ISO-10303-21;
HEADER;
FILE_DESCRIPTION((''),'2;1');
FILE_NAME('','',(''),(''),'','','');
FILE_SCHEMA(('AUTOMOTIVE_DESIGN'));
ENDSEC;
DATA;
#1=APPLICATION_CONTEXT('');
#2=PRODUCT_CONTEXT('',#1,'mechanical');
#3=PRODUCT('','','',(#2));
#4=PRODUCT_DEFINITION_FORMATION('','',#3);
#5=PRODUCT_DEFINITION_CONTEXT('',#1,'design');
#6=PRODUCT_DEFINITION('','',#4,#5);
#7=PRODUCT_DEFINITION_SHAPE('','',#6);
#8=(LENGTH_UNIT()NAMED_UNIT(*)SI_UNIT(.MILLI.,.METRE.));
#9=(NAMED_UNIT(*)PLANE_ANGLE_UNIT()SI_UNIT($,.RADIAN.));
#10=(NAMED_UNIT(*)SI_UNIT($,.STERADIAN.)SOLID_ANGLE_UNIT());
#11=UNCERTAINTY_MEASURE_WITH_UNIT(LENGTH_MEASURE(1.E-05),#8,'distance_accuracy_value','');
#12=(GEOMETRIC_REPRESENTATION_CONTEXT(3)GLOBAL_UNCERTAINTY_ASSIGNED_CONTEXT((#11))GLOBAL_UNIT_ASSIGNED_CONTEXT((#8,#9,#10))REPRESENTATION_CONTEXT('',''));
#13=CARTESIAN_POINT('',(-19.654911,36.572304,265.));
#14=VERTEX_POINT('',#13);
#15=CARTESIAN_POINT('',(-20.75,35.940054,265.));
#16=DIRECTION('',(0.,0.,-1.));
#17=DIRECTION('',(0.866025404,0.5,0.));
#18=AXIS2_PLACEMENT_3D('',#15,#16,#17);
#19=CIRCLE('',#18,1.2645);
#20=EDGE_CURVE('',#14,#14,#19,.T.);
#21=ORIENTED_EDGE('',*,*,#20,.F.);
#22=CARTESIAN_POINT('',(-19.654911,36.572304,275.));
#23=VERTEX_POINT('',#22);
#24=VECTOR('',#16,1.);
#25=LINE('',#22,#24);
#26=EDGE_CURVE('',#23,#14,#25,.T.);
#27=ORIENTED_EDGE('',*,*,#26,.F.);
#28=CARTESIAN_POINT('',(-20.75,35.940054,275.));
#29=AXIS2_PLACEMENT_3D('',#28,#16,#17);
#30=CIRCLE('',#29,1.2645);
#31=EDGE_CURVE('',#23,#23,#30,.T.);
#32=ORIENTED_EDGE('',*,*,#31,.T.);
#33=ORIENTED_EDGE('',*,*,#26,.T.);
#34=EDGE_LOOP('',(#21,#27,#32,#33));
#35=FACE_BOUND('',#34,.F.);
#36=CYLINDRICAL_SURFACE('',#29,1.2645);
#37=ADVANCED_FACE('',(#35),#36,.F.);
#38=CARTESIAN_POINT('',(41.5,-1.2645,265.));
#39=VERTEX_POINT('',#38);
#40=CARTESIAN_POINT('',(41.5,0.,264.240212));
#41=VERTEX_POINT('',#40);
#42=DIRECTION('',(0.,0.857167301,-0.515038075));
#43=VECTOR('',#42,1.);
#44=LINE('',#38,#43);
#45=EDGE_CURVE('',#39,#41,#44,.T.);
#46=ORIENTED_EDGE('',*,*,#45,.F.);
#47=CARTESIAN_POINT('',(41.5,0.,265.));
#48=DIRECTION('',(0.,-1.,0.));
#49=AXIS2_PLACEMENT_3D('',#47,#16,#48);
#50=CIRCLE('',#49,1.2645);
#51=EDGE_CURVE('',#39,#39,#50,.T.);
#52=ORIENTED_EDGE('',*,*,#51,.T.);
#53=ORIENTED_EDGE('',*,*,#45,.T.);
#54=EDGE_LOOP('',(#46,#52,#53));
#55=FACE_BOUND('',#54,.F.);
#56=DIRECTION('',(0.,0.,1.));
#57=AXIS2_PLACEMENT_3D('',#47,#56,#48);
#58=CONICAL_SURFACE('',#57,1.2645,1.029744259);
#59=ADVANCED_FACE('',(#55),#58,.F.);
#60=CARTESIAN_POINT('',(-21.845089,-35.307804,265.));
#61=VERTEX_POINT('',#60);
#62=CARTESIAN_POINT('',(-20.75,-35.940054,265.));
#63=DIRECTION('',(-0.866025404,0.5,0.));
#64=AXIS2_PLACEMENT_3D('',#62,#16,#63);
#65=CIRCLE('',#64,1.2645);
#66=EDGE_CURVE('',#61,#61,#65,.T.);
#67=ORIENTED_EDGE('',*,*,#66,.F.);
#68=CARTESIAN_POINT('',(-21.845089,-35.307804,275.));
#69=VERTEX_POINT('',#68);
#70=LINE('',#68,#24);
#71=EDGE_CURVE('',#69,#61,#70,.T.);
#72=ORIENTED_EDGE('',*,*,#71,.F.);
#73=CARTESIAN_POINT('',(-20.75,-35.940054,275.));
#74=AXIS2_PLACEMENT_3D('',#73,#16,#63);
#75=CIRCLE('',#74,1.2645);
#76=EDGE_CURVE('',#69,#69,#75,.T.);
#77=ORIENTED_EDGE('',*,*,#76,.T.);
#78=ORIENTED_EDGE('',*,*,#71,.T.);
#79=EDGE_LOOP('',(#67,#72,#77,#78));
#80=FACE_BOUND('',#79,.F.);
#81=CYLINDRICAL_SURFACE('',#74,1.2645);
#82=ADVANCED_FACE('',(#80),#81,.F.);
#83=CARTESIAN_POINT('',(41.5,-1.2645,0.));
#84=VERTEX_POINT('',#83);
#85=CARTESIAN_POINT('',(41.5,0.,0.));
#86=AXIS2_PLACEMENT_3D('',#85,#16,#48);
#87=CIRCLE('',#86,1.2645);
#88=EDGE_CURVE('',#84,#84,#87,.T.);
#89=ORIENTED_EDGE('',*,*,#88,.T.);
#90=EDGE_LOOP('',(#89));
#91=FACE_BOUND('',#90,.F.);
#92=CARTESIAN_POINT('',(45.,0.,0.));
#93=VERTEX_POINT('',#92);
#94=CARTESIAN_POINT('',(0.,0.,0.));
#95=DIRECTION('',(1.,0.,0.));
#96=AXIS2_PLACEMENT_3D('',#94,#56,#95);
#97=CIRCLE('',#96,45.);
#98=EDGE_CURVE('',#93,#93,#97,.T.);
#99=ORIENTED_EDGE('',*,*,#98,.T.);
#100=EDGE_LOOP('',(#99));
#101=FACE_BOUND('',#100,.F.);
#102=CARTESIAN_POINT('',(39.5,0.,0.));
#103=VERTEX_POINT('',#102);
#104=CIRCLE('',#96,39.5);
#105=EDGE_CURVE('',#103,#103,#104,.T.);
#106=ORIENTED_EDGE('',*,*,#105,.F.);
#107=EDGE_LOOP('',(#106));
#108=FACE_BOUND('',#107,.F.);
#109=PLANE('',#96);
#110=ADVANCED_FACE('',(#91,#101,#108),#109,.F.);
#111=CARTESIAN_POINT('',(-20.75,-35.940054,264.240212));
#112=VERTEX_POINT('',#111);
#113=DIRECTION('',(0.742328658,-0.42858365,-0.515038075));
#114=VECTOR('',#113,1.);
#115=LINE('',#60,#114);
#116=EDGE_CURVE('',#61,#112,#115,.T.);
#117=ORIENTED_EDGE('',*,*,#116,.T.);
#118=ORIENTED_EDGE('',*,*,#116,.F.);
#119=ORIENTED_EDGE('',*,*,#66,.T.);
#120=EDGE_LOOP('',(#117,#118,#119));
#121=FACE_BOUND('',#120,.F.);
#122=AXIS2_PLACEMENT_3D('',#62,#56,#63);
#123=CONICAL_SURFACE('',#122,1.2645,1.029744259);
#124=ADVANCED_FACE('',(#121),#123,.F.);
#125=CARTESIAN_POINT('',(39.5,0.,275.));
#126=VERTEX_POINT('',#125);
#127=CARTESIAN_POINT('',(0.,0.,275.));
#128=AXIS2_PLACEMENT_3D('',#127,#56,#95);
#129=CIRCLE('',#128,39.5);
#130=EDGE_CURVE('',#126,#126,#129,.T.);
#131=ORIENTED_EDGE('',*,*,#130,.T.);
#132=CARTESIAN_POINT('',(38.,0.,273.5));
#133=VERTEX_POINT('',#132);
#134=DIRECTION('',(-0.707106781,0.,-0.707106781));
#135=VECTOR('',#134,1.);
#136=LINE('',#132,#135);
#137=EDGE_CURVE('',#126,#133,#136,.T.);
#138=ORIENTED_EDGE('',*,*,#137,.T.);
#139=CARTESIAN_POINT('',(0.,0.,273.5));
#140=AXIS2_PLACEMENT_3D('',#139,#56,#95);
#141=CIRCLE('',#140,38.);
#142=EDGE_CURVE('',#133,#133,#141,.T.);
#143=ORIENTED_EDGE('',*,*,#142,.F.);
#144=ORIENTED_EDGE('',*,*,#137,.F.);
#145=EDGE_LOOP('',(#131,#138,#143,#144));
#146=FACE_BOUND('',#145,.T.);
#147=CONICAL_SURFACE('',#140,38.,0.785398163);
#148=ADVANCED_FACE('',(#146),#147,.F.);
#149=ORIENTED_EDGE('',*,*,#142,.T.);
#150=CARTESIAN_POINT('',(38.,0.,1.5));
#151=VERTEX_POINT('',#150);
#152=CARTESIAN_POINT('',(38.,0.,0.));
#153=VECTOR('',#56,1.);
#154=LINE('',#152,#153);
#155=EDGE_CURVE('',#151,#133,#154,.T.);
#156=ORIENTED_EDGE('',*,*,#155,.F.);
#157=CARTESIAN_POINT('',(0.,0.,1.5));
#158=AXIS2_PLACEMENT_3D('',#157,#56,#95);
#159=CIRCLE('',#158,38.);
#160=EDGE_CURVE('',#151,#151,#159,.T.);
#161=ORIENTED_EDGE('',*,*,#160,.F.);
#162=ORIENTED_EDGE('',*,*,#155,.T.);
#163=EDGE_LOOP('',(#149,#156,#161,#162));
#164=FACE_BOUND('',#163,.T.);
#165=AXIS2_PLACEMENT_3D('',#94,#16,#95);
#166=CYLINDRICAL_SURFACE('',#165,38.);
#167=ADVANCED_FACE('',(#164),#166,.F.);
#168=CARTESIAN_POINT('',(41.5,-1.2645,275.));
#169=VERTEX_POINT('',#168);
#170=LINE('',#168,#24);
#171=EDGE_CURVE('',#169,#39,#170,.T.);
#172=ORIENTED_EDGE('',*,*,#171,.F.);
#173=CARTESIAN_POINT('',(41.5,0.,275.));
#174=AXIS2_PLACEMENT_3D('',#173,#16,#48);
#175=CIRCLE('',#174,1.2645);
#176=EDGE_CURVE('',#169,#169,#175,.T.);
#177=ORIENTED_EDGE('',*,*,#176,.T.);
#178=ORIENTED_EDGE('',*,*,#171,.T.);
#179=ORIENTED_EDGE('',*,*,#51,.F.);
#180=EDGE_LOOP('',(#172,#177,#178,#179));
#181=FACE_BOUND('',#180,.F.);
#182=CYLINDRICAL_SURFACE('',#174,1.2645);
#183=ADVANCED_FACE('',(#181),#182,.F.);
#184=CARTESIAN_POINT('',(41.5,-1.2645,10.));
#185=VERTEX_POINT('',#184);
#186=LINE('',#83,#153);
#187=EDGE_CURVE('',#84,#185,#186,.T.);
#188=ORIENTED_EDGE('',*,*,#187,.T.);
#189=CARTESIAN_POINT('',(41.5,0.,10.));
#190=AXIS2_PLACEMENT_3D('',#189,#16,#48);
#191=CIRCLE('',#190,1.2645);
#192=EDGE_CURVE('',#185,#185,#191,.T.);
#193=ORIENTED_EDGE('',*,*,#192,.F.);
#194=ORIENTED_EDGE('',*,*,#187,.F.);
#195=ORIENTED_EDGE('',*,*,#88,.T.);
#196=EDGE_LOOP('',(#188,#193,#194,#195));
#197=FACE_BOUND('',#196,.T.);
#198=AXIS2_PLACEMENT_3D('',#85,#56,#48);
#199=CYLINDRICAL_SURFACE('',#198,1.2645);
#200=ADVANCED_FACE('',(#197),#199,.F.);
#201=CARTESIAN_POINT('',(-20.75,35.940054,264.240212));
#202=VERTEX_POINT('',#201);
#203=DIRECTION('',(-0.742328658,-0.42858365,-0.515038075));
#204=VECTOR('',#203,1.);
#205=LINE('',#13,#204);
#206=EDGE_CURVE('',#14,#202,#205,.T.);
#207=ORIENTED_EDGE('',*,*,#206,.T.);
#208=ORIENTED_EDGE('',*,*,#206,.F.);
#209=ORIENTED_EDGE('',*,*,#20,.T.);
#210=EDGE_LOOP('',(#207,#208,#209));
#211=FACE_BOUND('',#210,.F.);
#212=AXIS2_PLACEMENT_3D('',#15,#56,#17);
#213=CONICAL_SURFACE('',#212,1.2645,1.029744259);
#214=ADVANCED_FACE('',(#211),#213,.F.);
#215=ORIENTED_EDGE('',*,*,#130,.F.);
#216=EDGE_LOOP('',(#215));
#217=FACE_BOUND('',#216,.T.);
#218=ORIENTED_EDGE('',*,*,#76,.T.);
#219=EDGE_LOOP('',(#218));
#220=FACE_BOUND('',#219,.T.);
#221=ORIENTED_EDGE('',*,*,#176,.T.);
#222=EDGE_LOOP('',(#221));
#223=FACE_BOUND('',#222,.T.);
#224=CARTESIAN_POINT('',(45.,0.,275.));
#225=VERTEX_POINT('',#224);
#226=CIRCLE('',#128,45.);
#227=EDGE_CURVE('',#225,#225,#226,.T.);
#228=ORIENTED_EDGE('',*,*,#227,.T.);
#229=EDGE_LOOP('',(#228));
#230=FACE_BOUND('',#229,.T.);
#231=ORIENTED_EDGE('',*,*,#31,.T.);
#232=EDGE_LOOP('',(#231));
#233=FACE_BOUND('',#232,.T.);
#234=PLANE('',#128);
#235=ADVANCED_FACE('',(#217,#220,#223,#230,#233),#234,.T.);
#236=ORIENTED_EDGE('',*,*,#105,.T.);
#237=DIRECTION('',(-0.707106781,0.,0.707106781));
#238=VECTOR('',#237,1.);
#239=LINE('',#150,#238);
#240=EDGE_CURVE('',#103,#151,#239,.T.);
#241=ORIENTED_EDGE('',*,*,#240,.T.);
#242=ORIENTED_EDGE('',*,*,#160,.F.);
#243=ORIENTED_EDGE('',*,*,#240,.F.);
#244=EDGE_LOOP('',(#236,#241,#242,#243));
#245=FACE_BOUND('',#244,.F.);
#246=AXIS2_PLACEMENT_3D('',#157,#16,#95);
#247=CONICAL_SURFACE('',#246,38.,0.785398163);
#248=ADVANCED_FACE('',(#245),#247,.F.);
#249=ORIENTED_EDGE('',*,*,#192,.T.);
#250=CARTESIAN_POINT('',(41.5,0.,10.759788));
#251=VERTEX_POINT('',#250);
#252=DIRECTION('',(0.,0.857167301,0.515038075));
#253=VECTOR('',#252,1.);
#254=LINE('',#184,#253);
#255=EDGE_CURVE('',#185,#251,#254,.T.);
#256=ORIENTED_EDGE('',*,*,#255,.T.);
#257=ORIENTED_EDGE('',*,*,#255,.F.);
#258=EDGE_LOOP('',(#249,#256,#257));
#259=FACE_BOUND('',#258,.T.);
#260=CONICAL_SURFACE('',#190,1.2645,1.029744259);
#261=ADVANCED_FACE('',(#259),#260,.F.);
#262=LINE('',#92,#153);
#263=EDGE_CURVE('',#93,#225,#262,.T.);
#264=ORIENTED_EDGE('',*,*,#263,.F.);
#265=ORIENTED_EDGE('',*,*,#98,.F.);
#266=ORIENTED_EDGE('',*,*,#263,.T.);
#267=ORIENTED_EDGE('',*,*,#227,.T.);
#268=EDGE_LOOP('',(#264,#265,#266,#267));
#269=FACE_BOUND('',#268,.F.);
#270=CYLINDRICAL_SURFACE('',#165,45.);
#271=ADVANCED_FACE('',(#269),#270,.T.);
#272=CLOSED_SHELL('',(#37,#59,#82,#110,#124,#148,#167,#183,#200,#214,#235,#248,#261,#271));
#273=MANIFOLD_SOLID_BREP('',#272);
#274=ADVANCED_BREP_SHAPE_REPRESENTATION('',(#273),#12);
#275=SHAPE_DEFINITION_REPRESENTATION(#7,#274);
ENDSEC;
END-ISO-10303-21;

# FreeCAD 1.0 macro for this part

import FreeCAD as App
import Part
import Sketcher


def edges_at(feature, points):
    """Names of the edges that pass closest to the given points."""
    edges = feature.Shape.Edges
    near = lambda p: min(range(len(edges)), key=lambda i: edges[i].distToShape(Part.Vertex(*p))[0])
    return sorted({f"Edge{near(p) + 1}" for p in points})

doc = App.newDocument("Part")
params = doc.addObject("Spreadsheet::Sheet", "Params")
for row, (alias, value) in enumerate([
    ("sketch1_diameter", "76 mm"),
    ("sketch1_diameter2", "90 mm"),
    ("pad1_length", "275 mm"),
    ("hole_diameter", "2.529 mm"),
    ("hole_depth", "10 mm"),
    ("chamfer_size", "1.5 mm"),
], start=1):
    params.set(f"A{row}", alias)
    params.set(f"B{row}", "=" + value)
    params.setAlias(f"B{row}", alias)

body = doc.addObject("PartDesign::Body", "Body")

sketch1 = body.newObject("Sketcher::SketchObject", "Sketch")
sketch1.AttachmentSupport = (doc.getObject("XY_Plane"), [""])
sketch1.MapMode = "FlatFace"
sketch1.addGeometry([
    Part.Circle(App.Vector(0, 0, 0), App.Vector(0, 0, 1), 45),
    Part.Circle(App.Vector(0, 0, 0), App.Vector(0, 0, 1), 38),
], False)
sketch1.addConstraint([
    Sketcher.Constraint("Coincident", 0, 3, -1, 1),
    Sketcher.Constraint("Coincident", 1, 3, -1, 1),
    Sketcher.Constraint("Diameter", 1, 76.0),
    Sketcher.Constraint("Diameter", 0, 90.0),
])
sketch1.setExpression("Constraints[2]", "Params.sketch1_diameter")
sketch1.setExpression("Constraints[3]", "Params.sketch1_diameter2")
pad1 = body.newObject("PartDesign::Pad", "Pad")
pad1.Profile = sketch1
pad1.setExpression("Length", "Params.pad1_length")

sketch2 = body.newObject("Sketcher::SketchObject", "Sketch001")
sketch2.AttachmentSupport = (doc.getObject("XY_Plane"), [""])
sketch2.MapMode = "FlatFace"
sketch2.AttachmentOffset = App.Placement(App.Vector(0, 0, 275), App.Rotation())
sketch2.addGeometry(Part.Circle(App.Vector(41.5, 0, 0), App.Vector(0, 0, 1), 1.2645), False)
sketch2.addConstraint([
    Sketcher.Constraint("PointOnObject", 0, 3, -1),
    Sketcher.Constraint("Diameter", 0, 2.529),
    Sketcher.Constraint("DistanceX", -1, 1, 0, 3, 41.5),
])
doc.recompute()
hole = body.newObject("PartDesign::Hole", "Hole")
hole.Profile = sketch2
hole.ThreadType = "None"
hole.setExpression("Diameter", "Params.hole_diameter")
hole.DepthType = "Dimension"
hole.setExpression("Depth", "Params.hole_depth")
hole.DrillPoint = "Angled"
hole.DrillPointAngle = 118
doc.recompute()

polarpattern = body.newObject("PartDesign::PolarPattern", "PolarPattern")
polarpattern.Originals = [hole]
polarpattern.Axis = (doc.getObject("Z_Axis"), [""])
polarpattern.Angle = 360
polarpattern.Occurrences = 3
body.Tip = polarpattern
doc.recompute()

chamfer = body.newObject("PartDesign::Chamfer", "Chamfer")
chamfer.Base = (polarpattern, edges_at(polarpattern, [(-35.428, 13.741, 275), (-35.428, 13.741, 0)]))
chamfer.setExpression("Size", "Params.chamfer_size")
doc.recompute()

datumplane = body.newObject("PartDesign::Plane", "DatumPlane")
datumplane.AttachmentSupport = (doc.getObject("XY_Plane"), [""])
datumplane.MapMode = "FlatFace"
datumplane.AttachmentOffset = App.Placement(App.Vector(0, 0, 137.5), App.Rotation())
mirrored = body.newObject("PartDesign::Mirrored", "Mirrored")
mirrored.Originals = [hole]
mirrored.MirrorPlane = (datumplane, [""])
body.Tip = mirrored

doc.recompute()
